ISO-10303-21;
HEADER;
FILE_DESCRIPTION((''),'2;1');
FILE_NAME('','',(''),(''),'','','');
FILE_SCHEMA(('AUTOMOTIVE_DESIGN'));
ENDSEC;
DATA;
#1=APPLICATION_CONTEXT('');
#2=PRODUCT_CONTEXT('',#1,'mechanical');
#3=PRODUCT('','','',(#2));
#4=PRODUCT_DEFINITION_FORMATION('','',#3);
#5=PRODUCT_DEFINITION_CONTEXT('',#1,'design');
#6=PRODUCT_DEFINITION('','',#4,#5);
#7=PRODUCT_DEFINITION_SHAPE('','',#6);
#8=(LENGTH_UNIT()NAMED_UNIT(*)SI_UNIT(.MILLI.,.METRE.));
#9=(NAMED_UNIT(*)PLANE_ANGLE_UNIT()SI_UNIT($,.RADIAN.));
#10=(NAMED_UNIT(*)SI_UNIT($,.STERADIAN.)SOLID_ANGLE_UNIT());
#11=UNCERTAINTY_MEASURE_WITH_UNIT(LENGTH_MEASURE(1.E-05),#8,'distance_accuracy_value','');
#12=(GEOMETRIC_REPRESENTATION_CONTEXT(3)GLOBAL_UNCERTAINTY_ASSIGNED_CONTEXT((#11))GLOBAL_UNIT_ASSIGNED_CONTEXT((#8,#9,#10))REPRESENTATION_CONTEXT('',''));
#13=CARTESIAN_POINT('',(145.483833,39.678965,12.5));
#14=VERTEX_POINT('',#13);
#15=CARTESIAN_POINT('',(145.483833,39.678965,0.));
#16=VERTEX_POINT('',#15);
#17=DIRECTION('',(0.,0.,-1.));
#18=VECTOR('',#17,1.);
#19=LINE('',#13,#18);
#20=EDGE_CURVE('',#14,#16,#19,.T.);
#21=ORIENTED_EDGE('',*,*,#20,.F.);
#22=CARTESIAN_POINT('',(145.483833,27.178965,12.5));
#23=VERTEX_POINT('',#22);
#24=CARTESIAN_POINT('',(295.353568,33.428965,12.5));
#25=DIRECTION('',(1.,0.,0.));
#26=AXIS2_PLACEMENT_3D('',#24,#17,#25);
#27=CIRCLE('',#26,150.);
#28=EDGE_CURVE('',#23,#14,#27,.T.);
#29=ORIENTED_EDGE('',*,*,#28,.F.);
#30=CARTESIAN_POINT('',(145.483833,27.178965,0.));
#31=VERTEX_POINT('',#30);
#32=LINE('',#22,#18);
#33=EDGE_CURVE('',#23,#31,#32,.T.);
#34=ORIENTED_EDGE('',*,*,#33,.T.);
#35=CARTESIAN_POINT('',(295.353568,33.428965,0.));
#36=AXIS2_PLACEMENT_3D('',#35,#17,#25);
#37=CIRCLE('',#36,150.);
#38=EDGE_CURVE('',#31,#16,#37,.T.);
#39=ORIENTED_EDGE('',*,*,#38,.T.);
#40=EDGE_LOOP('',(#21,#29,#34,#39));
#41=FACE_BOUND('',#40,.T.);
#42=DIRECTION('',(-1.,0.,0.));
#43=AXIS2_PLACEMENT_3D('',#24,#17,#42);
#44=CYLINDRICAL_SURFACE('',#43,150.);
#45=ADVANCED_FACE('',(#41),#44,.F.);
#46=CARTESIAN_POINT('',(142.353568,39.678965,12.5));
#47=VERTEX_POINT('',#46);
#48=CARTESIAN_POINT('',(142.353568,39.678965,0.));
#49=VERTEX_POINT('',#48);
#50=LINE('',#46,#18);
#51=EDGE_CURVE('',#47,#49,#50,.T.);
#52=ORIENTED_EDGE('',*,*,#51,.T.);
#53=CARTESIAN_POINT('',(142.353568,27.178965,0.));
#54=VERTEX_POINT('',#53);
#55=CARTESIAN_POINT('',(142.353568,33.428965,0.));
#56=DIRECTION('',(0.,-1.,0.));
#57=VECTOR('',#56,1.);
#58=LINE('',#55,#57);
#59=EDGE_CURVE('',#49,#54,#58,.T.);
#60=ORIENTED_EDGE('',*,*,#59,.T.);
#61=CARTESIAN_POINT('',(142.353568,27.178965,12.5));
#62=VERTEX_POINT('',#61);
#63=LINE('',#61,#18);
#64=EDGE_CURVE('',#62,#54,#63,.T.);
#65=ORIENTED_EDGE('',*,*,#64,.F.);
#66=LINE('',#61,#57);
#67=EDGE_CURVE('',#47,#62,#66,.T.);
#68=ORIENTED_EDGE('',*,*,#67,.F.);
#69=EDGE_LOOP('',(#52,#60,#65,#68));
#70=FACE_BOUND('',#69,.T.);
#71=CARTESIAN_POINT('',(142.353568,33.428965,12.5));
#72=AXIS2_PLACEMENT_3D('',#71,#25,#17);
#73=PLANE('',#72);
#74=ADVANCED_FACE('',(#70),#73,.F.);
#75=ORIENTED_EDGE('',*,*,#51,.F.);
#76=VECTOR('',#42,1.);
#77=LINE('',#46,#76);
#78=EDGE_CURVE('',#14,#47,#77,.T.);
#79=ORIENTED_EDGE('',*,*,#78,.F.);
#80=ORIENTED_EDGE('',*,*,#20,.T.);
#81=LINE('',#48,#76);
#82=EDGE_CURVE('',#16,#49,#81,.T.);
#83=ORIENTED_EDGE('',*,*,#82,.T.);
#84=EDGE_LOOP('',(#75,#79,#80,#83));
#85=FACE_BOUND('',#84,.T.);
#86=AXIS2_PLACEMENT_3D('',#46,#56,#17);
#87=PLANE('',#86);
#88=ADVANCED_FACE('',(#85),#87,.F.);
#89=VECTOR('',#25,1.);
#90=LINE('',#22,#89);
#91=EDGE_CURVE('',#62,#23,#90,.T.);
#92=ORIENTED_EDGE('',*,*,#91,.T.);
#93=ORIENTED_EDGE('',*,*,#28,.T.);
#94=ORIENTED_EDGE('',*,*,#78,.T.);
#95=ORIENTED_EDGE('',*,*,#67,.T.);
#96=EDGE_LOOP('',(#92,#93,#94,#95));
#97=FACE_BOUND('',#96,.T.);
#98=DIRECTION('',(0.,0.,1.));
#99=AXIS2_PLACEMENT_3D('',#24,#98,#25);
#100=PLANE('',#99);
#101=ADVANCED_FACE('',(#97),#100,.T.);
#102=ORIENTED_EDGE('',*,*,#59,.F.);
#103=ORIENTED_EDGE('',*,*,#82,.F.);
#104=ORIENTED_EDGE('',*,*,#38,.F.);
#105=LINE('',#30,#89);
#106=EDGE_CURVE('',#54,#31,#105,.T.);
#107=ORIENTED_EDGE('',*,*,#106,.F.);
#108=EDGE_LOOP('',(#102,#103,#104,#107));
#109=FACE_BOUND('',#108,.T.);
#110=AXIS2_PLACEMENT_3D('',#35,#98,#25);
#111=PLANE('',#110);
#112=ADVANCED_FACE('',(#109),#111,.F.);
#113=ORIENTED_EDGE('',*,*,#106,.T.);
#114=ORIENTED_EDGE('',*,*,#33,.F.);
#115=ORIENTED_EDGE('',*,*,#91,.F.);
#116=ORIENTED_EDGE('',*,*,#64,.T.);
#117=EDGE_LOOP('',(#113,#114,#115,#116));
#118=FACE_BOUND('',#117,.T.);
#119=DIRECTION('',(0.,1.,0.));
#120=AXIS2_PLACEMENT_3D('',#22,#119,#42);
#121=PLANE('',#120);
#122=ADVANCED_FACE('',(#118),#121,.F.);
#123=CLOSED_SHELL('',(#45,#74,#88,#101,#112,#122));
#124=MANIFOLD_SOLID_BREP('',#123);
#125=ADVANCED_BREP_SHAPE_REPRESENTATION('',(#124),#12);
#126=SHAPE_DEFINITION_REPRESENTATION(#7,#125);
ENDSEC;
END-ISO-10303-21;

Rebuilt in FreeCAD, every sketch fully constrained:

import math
import FreeCAD as App
import Part
import Sketcher

V = App.Vector
Q = App.Units.Quantity

doc = App.newDocument("Part")
params = doc.addObject("Spreadsheet::Sheet", "Params")
for row, (alias, value) in enumerate([
    ("sketch1_radius", "150.000001 mm"),
    ("sketch1_height", "12.5 mm"),
    ("pad1_length", "12.5 mm"),
], start=1):
    params.set(f"A{row}", alias)
    params.set(f"B{row}", "=" + value)
    params.setAlias(f"B{row}", alias)

body = doc.addObject("PartDesign::Body", "Body")

# Sketch on XY plane
sketch1 = doc.addObject("Sketcher::SketchObject", "Sketch")
body.addObject(sketch1)
sketch1.AttachmentSupport = (doc.XY_Plane, [""])
sketch1.MapMode = "FlatFace"
sketch1.addGeometry(Part.LineSegment(V(145.5, 39.7, 0), V(142.4, 39.7, 0)), False)
sketch1.addGeometry(Part.LineSegment(V(142.4, 39.7, 0), V(142.4, 27.2, 0)), False)
sketch1.addGeometry(Part.LineSegment(V(142.4, 27.2, 0), V(145.5, 27.2, 0)), False)
sketch1.addGeometry(Part.ArcOfCircle(Part.Circle(V(295.4, 33.4, 0), V(0, 0, 1), 150), math.radians(177.61), math.radians(182.39)), False)
sketch1.addConstraint(Sketcher.Constraint("Coincident", 0, 2, 1, 1))
sketch1.addConstraint(Sketcher.Constraint("Coincident", 1, 2, 2, 1))
sketch1.addConstraint(Sketcher.Constraint("Coincident", 2, 2, 3, 2))
sketch1.addConstraint(Sketcher.Constraint("Coincident", 3, 1, 0, 1))
sketch1.addConstraint(Sketcher.Constraint("Horizontal", 0))
sketch1.addConstraint(Sketcher.Constraint("Vertical", 1))
sketch1.addConstraint(Sketcher.Constraint("Horizontal", 2))
sketch1.addConstraint(Sketcher.Constraint("Vertical", 2, 2, 3, 1))
sketch1.addConstraint(Sketcher.Constraint("Radius", 3, Q("150.000001 mm")))
sketch1.addConstraint(Sketcher.Constraint("DistanceY", 1, 2, 1, 1, Q("12.5 mm")))
sketch1.addConstraint(Sketcher.Constraint("DistanceX", 0, 2, 3, 3, Q("153.000001 mm")))
sketch1.addConstraint(Sketcher.Constraint("DistanceX", -1, 1, 3, 3, Q("295.353568 mm")))
sketch1.addConstraint(Sketcher.Constraint("DistanceY", -1, 1, 3, 3, Q("33.428965 mm")))
sketch1.setExpression("Constraints[8]", "Params.sketch1_radius")
sketch1.setExpression("Constraints[9]", "Params.sketch1_height")
pad1 = doc.addObject("PartDesign::Pad", "Pad")
body.addObject(pad1)
pad1.Profile = sketch1
pad1.setExpression("Length", "Params.pad1_length")

doc.recompute()
